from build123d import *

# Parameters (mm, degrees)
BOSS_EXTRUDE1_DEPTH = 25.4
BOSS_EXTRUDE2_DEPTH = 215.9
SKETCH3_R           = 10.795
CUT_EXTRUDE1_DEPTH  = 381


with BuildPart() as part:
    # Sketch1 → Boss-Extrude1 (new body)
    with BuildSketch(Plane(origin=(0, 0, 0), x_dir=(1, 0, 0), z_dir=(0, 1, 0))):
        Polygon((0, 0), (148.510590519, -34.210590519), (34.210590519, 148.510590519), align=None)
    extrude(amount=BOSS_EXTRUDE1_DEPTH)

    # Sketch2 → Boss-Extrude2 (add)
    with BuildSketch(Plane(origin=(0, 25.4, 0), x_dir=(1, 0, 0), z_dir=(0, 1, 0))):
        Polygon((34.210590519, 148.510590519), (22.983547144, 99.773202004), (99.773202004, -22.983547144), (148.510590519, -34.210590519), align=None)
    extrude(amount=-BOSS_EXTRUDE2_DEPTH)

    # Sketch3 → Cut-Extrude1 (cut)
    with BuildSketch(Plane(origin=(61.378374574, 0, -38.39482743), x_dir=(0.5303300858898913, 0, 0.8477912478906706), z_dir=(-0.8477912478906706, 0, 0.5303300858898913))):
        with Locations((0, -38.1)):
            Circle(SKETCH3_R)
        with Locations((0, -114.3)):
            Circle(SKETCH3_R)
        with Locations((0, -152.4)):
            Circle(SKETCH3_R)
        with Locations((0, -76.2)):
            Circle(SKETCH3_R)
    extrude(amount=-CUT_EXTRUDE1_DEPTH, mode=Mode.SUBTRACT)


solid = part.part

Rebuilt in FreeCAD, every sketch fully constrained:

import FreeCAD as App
import Part
import Sketcher

V = App.Vector
Q = App.Units.Quantity

doc = App.newDocument("Part")
params = doc.addObject("Spreadsheet::Sheet", "Params")
for row, (alias, value) in enumerate([
    ("sketch1_length", "6 in"),
    ("pad1_length", "1 in"),
    ("pad2_length", "8.5 in"),
    ("sketch3_diameter", "0.85 in"),
    ("pocket1_length", "15 in"),
], start=1):
    params.set(f"A{row}", alias)
    params.set(f"B{row}", "=" + value)
    params.setAlias(f"B{row}", alias)

body = doc.addObject("PartDesign::Body", "Body")

# Sketch on XZ plane
sketch1 = doc.addObject("Sketcher::SketchObject", "Sketch")
body.addObject(sketch1)
sketch1.AttachmentSupport = (doc.XZ_Plane, [""])
sketch1.MapMode = "FlatFace"
sketch1.addGeometry([
    Part.LineSegment(V(0, 0, 0), V(149, 34, 0)),
    Part.LineSegment(V(149, 34, 0), V(34, -149, 0)),
    Part.LineSegment(V(34, -149, 0), V(0, 0, 0)),
], False)
sketch1.addConstraint([
    Sketcher.Constraint("Coincident", 0, 2, 1, 1),
    Sketcher.Constraint("Coincident", 1, 2, 2, 1),
    Sketcher.Constraint("Coincident", 2, 2, 0, 1),
    Sketcher.Constraint("Coincident", 2, 2, -1, 1),
    Sketcher.Constraint("Perpendicular", 0, 2),
    Sketcher.Constraint("Equal", 0, 2),
    Sketcher.Constraint("Distance", 0, Q("6 in")),
    Sketcher.Constraint("DistanceX", 1, 2, 0, 2, Q("4.5 in")),
])
sketch1.setExpression("Constraints[6]", "Params.sketch1_length")
pad1 = doc.addObject("PartDesign::Pad", "Pad")
body.addObject(pad1)
pad1.Profile = sketch1
pad1.setExpression("Length", "Params.pad1_length")
pad1.Reversed = True

# Sketch on XZ plane
sketch2 = doc.addObject("Sketcher::SketchObject", "Sketch001")
body.addObject(sketch2)
sketch2.AttachmentSupport = (doc.XZ_Plane, [""])
sketch2.MapMode = "FlatFace"
sketch2.AttachmentOffset = App.Placement(V(0, 0, -1 * 25.4), App.Rotation())
sketch2.addGeometry([
    Part.LineSegment(V(34, -149, 0), V(23, -100, 0)),
    Part.LineSegment(V(23, -100, 0), V(100, 23, 0)),
    Part.LineSegment(V(100, 23, 0), V(149, 34, 0)),
    Part.LineSegment(V(149, 34, 0), V(34, -149, 0)),
], False)
sketch2.addConstraint([
    Sketcher.Constraint("Coincident", 0, 2, 1, 1),
    Sketcher.Constraint("Coincident", 1, 2, 2, 1),
    Sketcher.Constraint("Coincident", 2, 2, 3, 1),
    Sketcher.Constraint("Coincident", 3, 2, 0, 1),
    Sketcher.Constraint("Perpendicular", 0, 2),
    Sketcher.Constraint("Parallel", 1, 3),
    Sketcher.Constraint("Equal", 0, 2),
    Sketcher.Constraint("DistanceX", 3, 2, 2, 2, Q("4.5 in")),
    Sketcher.Constraint("Distance", 1, Q("144.795962 mm")),
    Sketcher.Constraint("DistanceX", -1, 1, 2, 2, Q("148.510591 mm")),
    Sketcher.Constraint("DistanceY", -1, 1, 2, 2, Q("34.210591 mm")),
    Sketcher.Constraint("DistanceY", 3, 2, -1, 1, Q("148.510591 mm")),
])
pad2 = doc.addObject("PartDesign::Pad", "Pad001")
body.addObject(pad2)
pad2.Profile = sketch2
pad2.setExpression("Length", "Params.pad2_length")

# Sketch on an angled plane
sketch3 = doc.addObject("Sketcher::SketchObject", "Sketch002")
body.addObject(sketch3)
sketch3.Placement = App.Placement(V(61.378375, 0, -38.394827), App.Rotation(V(0.530330086, 0, 0.847791248), V(0, 1, 0), V(-0.847791248, 0, 0.530330086), "ZXY"))
sketch3.addGeometry([
    Part.Circle(V(0, -38, 0), V(0, 0, 1), 11),
    Part.Circle(V(0, -114, 0), V(0, 0, 1), 11),
    Part.Circle(V(0, -152, 0), V(0, 0, 1), 11),
    Part.Circle(V(0, -76, 0), V(0, 0, 1), 11),
], False)
sketch3.addConstraint([
    Sketcher.Constraint("Equal", 0, 1),
    Sketcher.Constraint("Equal", 1, 2),
    Sketcher.Constraint("Equal", 2, 3),
    Sketcher.Constraint("PointOnObject", 0, 3, -2),
    Sketcher.Constraint("PointOnObject", 1, 3, -2),
    Sketcher.Constraint("PointOnObject", 2, 3, -2),
    Sketcher.Constraint("PointOnObject", 3, 3, -2),
    Sketcher.Constraint("Diameter", 0, Q("0.85 in")),
    Sketcher.Constraint("DistanceY", 2, 3, -1, 1, Q("6 in")),
    Sketcher.Constraint("DistanceY", 3, 3, -1, 1, Q("3 in")),
    Sketcher.Constraint("DistanceY", 1, 3, 0, 3, Q("3 in")),
    Sketcher.Constraint("DistanceY", 0, 3, -1, 1, Q("1.5 in")),
])
sketch3.setExpression("Constraints[7]", "Params.sketch3_diameter")
pocket1 = doc.addObject("PartDesign::Pocket", "Pocket")
body.addObject(pocket1)
pocket1.Profile = sketch3
pocket1.setExpression("Length", "Params.pocket1_length")

doc.recompute()
